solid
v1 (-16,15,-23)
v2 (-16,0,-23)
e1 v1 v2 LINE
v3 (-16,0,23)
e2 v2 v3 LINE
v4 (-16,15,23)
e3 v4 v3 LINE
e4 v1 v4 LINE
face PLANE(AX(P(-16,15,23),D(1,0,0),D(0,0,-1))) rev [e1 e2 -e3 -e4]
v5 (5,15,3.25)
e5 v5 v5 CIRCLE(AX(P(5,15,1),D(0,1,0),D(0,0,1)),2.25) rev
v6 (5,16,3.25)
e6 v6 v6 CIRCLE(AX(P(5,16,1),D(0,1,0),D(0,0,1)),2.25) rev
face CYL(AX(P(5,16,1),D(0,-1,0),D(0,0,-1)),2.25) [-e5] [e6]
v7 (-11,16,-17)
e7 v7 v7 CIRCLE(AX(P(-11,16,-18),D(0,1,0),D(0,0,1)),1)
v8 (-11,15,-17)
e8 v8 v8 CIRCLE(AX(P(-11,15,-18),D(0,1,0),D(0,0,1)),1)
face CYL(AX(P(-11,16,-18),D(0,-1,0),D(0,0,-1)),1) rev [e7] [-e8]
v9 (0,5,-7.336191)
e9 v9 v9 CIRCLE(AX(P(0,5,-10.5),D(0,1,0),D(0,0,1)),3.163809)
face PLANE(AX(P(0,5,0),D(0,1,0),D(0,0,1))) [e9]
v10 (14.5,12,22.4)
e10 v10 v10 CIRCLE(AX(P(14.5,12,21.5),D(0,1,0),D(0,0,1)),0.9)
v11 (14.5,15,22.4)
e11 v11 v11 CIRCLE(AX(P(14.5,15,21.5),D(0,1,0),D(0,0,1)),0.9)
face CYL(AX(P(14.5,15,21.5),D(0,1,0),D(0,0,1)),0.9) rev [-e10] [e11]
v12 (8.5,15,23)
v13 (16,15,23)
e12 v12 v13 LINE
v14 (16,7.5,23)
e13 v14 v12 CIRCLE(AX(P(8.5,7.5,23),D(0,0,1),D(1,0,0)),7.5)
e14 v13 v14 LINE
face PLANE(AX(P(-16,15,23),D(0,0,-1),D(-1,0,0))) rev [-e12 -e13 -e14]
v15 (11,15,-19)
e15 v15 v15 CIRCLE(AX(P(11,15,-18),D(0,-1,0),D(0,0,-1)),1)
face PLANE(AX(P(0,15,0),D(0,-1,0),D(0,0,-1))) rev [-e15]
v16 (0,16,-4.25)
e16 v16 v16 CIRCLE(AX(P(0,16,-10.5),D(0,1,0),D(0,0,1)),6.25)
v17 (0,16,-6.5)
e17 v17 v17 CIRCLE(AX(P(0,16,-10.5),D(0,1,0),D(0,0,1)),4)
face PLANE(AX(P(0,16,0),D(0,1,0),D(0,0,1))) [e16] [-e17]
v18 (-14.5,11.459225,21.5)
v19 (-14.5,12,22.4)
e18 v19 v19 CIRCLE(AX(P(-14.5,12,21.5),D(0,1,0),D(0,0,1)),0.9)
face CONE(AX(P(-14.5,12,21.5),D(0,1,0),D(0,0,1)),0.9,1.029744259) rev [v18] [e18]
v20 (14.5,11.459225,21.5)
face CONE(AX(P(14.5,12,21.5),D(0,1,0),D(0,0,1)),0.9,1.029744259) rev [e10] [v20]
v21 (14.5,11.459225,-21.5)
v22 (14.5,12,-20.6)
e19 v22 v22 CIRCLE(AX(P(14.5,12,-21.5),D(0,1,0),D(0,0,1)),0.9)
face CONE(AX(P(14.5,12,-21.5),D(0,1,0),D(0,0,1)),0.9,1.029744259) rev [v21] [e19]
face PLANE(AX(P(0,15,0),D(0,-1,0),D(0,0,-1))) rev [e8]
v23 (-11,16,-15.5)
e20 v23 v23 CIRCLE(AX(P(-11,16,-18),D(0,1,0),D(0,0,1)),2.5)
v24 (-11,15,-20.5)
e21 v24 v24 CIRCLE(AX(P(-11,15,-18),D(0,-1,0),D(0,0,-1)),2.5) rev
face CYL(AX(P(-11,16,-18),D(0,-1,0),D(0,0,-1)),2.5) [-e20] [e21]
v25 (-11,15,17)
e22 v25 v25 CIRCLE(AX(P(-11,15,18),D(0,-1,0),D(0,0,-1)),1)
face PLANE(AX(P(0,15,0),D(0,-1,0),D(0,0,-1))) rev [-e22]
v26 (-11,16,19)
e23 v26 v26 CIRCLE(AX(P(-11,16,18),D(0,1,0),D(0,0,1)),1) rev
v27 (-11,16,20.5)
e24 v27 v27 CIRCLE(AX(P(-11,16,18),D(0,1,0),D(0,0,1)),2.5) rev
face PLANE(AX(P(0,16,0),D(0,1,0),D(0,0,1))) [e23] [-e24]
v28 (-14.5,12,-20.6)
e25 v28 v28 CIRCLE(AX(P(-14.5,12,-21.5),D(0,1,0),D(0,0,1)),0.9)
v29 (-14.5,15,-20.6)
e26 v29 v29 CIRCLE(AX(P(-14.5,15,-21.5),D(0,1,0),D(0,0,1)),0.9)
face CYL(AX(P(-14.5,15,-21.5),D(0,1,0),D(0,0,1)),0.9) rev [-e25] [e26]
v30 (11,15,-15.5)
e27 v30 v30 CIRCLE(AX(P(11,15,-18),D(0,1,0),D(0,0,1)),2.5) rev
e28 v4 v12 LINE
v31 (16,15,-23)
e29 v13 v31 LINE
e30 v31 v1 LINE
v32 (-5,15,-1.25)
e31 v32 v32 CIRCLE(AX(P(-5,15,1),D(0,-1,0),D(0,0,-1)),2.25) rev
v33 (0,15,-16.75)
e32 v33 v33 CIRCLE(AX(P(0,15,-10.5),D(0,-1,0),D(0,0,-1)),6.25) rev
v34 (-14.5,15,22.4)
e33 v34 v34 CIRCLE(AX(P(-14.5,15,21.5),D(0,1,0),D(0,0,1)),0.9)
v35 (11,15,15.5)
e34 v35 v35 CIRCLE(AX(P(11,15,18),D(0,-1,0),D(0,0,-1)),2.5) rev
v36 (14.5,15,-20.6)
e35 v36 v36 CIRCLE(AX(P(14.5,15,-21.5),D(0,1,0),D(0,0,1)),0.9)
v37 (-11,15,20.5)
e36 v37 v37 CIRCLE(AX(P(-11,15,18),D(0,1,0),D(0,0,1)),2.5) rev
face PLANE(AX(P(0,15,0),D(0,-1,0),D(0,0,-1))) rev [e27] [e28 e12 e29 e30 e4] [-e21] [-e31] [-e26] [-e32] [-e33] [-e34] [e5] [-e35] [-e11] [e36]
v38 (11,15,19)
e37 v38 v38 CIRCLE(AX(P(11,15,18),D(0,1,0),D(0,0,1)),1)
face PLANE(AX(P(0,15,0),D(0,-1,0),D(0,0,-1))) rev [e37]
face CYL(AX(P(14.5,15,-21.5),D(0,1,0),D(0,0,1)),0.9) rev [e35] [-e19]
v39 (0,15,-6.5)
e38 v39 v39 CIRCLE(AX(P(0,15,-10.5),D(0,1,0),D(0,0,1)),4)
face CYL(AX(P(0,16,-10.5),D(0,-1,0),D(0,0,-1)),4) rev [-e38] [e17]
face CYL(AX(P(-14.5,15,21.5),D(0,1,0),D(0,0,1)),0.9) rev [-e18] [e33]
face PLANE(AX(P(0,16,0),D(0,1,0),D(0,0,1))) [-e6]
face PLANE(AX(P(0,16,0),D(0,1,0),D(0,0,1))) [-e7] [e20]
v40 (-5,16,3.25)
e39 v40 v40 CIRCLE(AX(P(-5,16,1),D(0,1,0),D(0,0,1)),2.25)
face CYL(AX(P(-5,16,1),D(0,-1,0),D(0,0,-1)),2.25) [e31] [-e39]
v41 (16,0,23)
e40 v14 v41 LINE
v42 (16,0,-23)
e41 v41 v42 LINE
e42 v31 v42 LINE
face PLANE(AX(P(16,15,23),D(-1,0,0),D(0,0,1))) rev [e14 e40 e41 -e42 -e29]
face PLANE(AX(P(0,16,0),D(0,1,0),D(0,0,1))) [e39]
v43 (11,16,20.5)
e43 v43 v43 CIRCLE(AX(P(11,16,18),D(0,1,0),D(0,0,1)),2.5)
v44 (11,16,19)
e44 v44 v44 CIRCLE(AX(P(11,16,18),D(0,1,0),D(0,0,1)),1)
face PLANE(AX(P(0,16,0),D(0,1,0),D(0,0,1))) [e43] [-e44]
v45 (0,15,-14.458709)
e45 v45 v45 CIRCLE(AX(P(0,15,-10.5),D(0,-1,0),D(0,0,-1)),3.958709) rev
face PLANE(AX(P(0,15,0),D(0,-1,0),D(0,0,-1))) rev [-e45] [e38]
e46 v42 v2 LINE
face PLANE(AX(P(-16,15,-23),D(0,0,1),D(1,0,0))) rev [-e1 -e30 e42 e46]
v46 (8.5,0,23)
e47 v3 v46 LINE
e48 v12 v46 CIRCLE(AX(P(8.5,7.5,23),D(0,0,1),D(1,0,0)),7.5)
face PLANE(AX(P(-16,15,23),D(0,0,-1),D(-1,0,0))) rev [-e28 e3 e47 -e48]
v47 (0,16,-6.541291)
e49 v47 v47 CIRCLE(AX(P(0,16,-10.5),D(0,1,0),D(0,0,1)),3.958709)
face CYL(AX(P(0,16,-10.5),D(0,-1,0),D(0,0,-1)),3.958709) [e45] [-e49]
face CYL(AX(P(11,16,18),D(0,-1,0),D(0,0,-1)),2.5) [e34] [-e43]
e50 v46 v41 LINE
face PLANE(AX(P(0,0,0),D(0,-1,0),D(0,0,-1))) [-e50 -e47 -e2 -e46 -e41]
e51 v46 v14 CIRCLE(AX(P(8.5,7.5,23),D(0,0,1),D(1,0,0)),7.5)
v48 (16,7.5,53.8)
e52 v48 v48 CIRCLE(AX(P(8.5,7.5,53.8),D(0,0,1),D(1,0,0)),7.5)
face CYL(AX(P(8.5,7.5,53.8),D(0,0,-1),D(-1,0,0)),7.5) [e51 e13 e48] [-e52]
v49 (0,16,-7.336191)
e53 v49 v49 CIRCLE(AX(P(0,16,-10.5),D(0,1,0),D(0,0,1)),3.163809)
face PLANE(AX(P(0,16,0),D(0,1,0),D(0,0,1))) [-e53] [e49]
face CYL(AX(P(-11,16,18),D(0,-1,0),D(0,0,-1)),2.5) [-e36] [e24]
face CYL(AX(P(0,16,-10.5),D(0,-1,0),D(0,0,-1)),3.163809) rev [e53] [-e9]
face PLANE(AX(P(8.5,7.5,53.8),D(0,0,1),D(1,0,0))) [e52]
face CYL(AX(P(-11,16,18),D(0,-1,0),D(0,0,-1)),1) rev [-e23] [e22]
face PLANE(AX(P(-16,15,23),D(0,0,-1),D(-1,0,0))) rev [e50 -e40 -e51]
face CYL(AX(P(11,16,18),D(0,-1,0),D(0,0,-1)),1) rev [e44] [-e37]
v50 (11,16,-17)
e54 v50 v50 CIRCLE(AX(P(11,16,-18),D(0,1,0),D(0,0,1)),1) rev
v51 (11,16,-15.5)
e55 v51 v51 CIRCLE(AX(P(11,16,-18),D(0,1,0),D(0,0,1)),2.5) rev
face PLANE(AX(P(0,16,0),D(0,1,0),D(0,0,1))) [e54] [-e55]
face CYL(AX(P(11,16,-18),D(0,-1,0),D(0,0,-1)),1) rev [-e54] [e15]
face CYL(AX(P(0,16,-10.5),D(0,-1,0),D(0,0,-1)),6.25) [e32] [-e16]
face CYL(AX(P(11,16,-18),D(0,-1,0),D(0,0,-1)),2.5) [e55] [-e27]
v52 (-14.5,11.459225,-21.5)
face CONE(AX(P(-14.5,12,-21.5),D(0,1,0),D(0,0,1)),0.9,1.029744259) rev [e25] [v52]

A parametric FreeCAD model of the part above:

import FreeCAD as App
import Part
import Sketcher

V = App.Vector
Q = App.Units.Quantity

doc = App.newDocument("Part")
body = doc.addObject("PartDesign::Body", "Body")

sketch1 = doc.addObject("Sketcher::SketchObject", "Sketch")
body.addObject(sketch1)
sketch1.AttachmentSupport = (doc.XZ_Plane, [""])
sketch1.MapMode = "FlatFace"
sketch1.addGeometry(Part.LineSegment(V(-16, -23, 0), V(-16, 23, 0)), False)
sketch1.addGeometry(Part.LineSegment(V(-16, 23, 0), V(16, 23, 0)), False)
sketch1.addGeometry(Part.LineSegment(V(16, 23, 0), V(16, -23, 0)), False)
sketch1.addGeometry(Part.LineSegment(V(16, -23, 0), V(-16, -23, 0)), False)
sketch1.addConstraint(Sketcher.Constraint("Coincident", 0, 2, 1, 1))
sketch1.addConstraint(Sketcher.Constraint("Coincident", 1, 2, 2, 1))
sketch1.addConstraint(Sketcher.Constraint("Coincident", 2, 2, 3, 1))
sketch1.addConstraint(Sketcher.Constraint("Coincident", 3, 2, 0, 1))
sketch1.addConstraint(Sketcher.Constraint("Vertical", 0))
sketch1.addConstraint(Sketcher.Constraint("Horizontal", 1))
sketch1.addConstraint(Sketcher.Constraint("Vertical", 2))
sketch1.addConstraint(Sketcher.Constraint("Horizontal", 3))
sketch1.addConstraint(Sketcher.Constraint("Symmetric", 0, 2, 2, 2, -1, 1))
sketch1.addConstraint(Sketcher.Constraint("DistanceX", 1, 1, 1, 2, Q("32 mm")))
sketch1.addConstraint(Sketcher.Constraint("DistanceY", 0, 1, 0, 2, Q("46 mm")))
pad1 = doc.addObject("PartDesign::Pad", "Pad")
body.addObject(pad1)
pad1.Profile = sketch1
pad1.Length = 15
pad1.Reversed = True

sketch2 = doc.addObject("Sketcher::SketchObject", "Sketch001")
body.addObject(sketch2)
sketch2.AttachmentSupport = (doc.XY_Plane, [""])
sketch2.MapMode = "FlatFace"
sketch2.AttachmentOffset = App.Placement(V(0, 0, 23), App.Rotation())
sketch2.addGeometry(Part.Circle(V(8.5, 7.5, 0), V(0, 0, 1), 7.5), False)
sketch2.addConstraint(Sketcher.Constraint("Diameter", 0, Q("15 mm")))
sketch2.addConstraint(Sketcher.Constraint("DistanceX", -1, 1, 0, 3, Q("8.5 mm")))
sketch2.addConstraint(Sketcher.Constraint("DistanceY", -1, 1, 0, 3, Q("7.5 mm")))
pad2 = doc.addObject("PartDesign::Pad", "Pad001")
body.addObject(pad2)
pad2.Profile = sketch2
pad2.Length = 30.8

sketch3 = doc.addObject("Sketcher::SketchObject", "Sketch002")
body.addObject(sketch3)
sketch3.AttachmentSupport = (doc.XZ_Plane, [""])
sketch3.MapMode = "FlatFace"
sketch3.AttachmentOffset = App.Placement(V(0, 0, -15), App.Rotation())
sketch3.addGeometry(Part.Circle(V(-11, -18, 0), V(0, 0, 1), 2.5), False)
sketch3.addGeometry(Part.Circle(V(-11, -18, 0), V(0, 0, 1), 1), False)
sketch3.addGeometry(Part.Circle(V(11, -18, 0), V(0, 0, 1), 2.5), False)
sketch3.addGeometry(Part.Circle(V(11, -18, 0), V(0, 0, 1), 1), False)
sketch3.addGeometry(Part.Circle(V(-5, 1, 0), V(0, 0, 1), 2.25), False)
sketch3.addGeometry(Part.Circle(V(5, 1, 0), V(0, 0, 1), 2.25), False)
sketch3.addGeometry(Part.Circle(V(-11, 18, 0), V(0, 0, 1), 2.5), False)
sketch3.addGeometry(Part.Circle(V(-11, 18, 0), V(0, 0, 1), 1), False)
sketch3.addGeometry(Part.Circle(V(11, 18, 0), V(0, 0, 1), 2.5), False)
sketch3.addGeometry(Part.Circle(V(11, 18, 0), V(0, 0, 1), 1), False)
sketch3.addGeometry(Part.Circle(V(0, -10.5, 0), V(0, 0, 1), 6.25), False)
sketch3.addGeometry(Part.Circle(V(0, -10.5, 0), V(0, 0, 1), 4), False)
sketch3.addGeometry(Part.Circle(V(0, -10.5, 0), V(0, 0, 1), 3.958709), False)
sketch3.addGeometry(Part.Circle(V(0, -10.5, 0), V(0, 0, 1), 3.163809), False)
sketch3.addConstraint(Sketcher.Constraint("Coincident", 1, 3, 0, 3))
sketch3.addConstraint(Sketcher.Constraint("Coincident", 3, 3, 2, 3))
sketch3.addConstraint(Sketcher.Constraint("Coincident", 7, 3, 6, 3))
sketch3.addConstraint(Sketcher.Constraint("Coincident", 9, 3, 8, 3))
sketch3.addConstraint(Sketcher.Constraint("Coincident", 11, 3, 10, 3))
sketch3.addConstraint(Sketcher.Constraint("Coincident", 12, 3, 10, 3))
sketch3.addConstraint(Sketcher.Constraint("Coincident", 13, 3, 10, 3))
sketch3.addConstraint(Sketcher.Constraint("Equal", 0, 2))
sketch3.addConstraint(Sketcher.Constraint("Equal", 1, 3))
sketch3.addConstraint(Sketcher.Constraint("Equal", 4, 5))
sketch3.addConstraint(Sketcher.Constraint("Equal", 2, 6))
sketch3.addConstraint(Sketcher.Constraint("Equal", 3, 7))
sketch3.addConstraint(Sketcher.Constraint("Equal", 6, 8))
sketch3.addConstraint(Sketcher.Constraint("Equal", 7, 9))
sketch3.addConstraint(Sketcher.Constraint("Symmetric", 2, 3, 6, 3, -1, 1))
sketch3.addConstraint(Sketcher.Constraint("Symmetric", 0, 3, 8, 3, -1, 1))
sketch3.addConstraint(Sketcher.Constraint("Symmetric", 0, 3, 2, 3, -2))
sketch3.addConstraint(Sketcher.Constraint("Symmetric", 4, 3, 5, 3, -2))
sketch3.addConstraint(Sketcher.Constraint("PointOnObject", 10, 3, -2))
sketch3.addConstraint(Sketcher.Constraint("Diameter", 0, Q("5 mm")))
sketch3.addConstraint(Sketcher.Constraint("Diameter", 1, Q("2 mm")))
sketch3.addConstraint(Sketcher.Constraint("Diameter", 11, Q("8 mm")))
sketch3.addConstraint(Sketcher.Constraint("Diameter", 4, Q("4.5 mm")))
sketch3.addConstraint(Sketcher.Constraint("Diameter", 10, Q("12.5 mm")))
sketch3.addConstraint(Sketcher.Constraint("DistanceX", 0, 3, -1, 1, Q("11 mm")))
sketch3.addConstraint(Sketcher.Constraint("DistanceY", 0, 3, -1, 1, Q("18 mm")))
sketch3.addConstraint(Sketcher.Constraint("DistanceX", 4, 3, -1, 1, Q("5 mm")))
sketch3.addConstraint(Sketcher.Constraint("DistanceY", -1, 1, 4, 3, Q("1 mm")))
sketch3.addConstraint(Sketcher.Constraint("DistanceY", 10, 3, -1, 1, Q("10.5 mm")))
sketch3.addConstraint(Sketcher.Constraint("Diameter", 12, Q("7.917419 mm")))
sketch3.addConstraint(Sketcher.Constraint("Diameter", 13, Q("6.327618 mm")))
pad3 = doc.addObject("PartDesign::Pad", "Pad002")
body.addObject(pad3)
pad3.Profile = sketch3
pad3.Length = 1
pad3.Reversed = True

sketch4 = doc.addObject("Sketcher::SketchObject", "Sketch003")
body.addObject(sketch4)
sketch4.AttachmentSupport = (doc.XZ_Plane, [""])
sketch4.MapMode = "FlatFace"
sketch4.AttachmentOffset = App.Placement(V(0, 0, -5), App.Rotation())
sketch4.addGeometry(Part.Circle(V(0, -10.5, 0), V(0, 0, 1), 3.163809), False)
sketch4.addConstraint(Sketcher.Constraint("PointOnObject", 0, 3, -2))
sketch4.addConstraint(Sketcher.Constraint("DistanceY", 0, 3, -1, 1, Q("10.5 mm")))
sketch4.addConstraint(Sketcher.Constraint("Diameter", 0, Q("6.327618 mm")))
pocket1 = doc.addObject("PartDesign::Pocket", "Pocket")
body.addObject(pocket1)
pocket1.Profile = sketch4
pocket1.Length = 10

sketch5 = doc.addObject("Sketcher::SketchObject", "Sketch004")
body.addObject(sketch5)
sketch5.AttachmentSupport = (doc.XZ_Plane, [""])
sketch5.MapMode = "FlatFace"
sketch5.AttachmentOffset = App.Placement(V(0, 0, -15), App.Rotation())
sketch5.addGeometry(Part.Circle(V(-14.5, -21.5, 0), V(0, 0, 1), 0.9), False)
sketch5.addGeometry(Part.Circle(V(14.5, -21.5, 0), V(0, 0, 1), 0.9), False)
sketch5.addGeometry(Part.Circle(V(-14.5, 21.5, 0), V(0, 0, 1), 0.9), False)
sketch5.addGeometry(Part.Circle(V(14.5, 21.5, 0), V(0, 0, 1), 0.9), False)
sketch5.addConstraint(Sketcher.Constraint("Equal", 0, 1))
sketch5.addConstraint(Sketcher.Constraint("Equal", 1, 2))
sketch5.addConstraint(Sketcher.Constraint("Equal", 2, 3))
sketch5.addConstraint(Sketcher.Constraint("Symmetric", 1, 3, 2, 3, -1, 1))
sketch5.addConstraint(Sketcher.Constraint("Symmetric", 0, 3, 3, 3, -1, 1))
sketch5.addConstraint(Sketcher.Constraint("Symmetric", 0, 3, 1, 3, -2))
sketch5.addConstraint(Sketcher.Constraint("Diameter", 0, Q("1.8 mm")))
sketch5.addConstraint(Sketcher.Constraint("DistanceX", 0, 3, 1, 3, Q("29 mm")))
sketch5.addConstraint(Sketcher.Constraint("DistanceY", 0, 3, 2, 3, Q("43 mm")))
doc.recompute()
hole = doc.addObject("PartDesign::Hole", "Hole")
body.addObject(hole)
hole.Profile = sketch5
hole.ThreadType = "None"
hole.Diameter = 1.8
hole.DepthType = "Dimension"
hole.Depth = 3
hole.DrillPoint = "Angled"
hole.DrillPointAngle = 118
hole.Reversed = True

doc.recompute()
